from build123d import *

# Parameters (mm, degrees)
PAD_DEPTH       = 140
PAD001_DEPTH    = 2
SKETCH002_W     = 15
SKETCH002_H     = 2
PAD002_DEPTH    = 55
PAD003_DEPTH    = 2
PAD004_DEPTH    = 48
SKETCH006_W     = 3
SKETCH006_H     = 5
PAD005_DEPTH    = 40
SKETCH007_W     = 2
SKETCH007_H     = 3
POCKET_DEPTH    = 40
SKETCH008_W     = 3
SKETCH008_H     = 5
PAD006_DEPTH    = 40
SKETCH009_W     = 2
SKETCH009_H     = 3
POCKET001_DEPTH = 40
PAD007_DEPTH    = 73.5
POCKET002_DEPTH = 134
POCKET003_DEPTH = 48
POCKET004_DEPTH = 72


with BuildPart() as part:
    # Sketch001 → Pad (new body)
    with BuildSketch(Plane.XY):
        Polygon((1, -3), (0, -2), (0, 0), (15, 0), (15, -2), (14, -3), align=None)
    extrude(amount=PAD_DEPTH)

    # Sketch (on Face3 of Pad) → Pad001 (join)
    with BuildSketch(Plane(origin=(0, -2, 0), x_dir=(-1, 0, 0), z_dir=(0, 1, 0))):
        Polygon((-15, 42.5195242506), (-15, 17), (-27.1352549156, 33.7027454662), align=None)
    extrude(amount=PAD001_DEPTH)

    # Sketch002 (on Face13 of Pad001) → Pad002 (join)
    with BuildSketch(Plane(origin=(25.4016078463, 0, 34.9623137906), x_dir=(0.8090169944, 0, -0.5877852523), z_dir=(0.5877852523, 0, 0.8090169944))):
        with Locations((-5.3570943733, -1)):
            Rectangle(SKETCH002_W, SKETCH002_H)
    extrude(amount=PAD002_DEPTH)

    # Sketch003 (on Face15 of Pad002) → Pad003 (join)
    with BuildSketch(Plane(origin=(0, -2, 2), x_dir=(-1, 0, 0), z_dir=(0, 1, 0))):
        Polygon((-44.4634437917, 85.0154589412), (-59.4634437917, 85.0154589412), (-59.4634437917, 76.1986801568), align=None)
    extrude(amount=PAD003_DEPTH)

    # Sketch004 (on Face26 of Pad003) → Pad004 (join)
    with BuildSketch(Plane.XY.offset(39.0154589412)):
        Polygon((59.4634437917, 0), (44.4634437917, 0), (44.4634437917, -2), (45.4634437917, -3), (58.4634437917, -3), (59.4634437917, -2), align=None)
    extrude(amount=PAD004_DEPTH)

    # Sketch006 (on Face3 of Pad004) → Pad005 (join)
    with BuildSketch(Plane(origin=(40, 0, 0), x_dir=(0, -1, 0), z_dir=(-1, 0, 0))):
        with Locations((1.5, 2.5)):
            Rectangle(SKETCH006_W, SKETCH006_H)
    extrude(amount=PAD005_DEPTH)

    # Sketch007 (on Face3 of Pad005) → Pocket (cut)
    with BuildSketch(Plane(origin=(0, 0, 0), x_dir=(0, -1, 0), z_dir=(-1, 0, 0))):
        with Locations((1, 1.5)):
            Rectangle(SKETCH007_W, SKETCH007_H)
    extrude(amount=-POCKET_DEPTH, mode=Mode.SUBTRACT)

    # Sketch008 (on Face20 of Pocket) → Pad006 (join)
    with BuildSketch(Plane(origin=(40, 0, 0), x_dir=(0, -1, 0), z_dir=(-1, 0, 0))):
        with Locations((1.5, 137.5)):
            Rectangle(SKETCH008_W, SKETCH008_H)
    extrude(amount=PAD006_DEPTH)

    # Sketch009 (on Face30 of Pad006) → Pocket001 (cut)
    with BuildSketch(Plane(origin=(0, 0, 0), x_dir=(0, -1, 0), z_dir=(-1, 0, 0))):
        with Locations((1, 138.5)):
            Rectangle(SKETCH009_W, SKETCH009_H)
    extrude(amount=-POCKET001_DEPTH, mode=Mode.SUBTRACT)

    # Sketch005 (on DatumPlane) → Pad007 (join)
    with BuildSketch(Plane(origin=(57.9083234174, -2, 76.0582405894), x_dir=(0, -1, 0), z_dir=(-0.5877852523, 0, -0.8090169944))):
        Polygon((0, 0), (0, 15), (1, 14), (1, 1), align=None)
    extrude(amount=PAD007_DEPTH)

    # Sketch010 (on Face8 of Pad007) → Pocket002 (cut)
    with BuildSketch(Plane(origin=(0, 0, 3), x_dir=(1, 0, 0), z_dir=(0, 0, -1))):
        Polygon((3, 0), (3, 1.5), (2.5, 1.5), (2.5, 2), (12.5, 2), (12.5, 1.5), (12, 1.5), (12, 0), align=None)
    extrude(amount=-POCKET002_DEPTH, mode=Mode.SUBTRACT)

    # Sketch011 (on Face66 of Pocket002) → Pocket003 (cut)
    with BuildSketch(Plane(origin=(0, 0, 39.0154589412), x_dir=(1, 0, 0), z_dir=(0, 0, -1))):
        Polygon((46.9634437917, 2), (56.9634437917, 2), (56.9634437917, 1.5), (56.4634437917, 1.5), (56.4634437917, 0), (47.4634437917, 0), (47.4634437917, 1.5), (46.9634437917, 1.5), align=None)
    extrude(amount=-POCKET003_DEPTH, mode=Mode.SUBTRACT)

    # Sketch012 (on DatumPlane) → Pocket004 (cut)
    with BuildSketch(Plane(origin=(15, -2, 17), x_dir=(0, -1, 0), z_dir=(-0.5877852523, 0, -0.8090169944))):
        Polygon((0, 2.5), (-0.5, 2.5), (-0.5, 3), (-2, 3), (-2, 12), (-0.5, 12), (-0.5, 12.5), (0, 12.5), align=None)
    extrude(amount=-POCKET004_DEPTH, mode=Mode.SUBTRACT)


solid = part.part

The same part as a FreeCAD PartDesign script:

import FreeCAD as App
import Part
import Sketcher
from FreeCAD import Vector
Q = App.Units.Quantity

doc = App.newDocument("Part")
body = doc.addObject("PartDesign::Body", "Body")

# Sketch on XY plane
sketch1 = body.newObject("Sketcher::SketchObject", "Sketch")
sketch1.AttachmentSupport = (doc.getObject("XY_Plane"), [""])
sketch1.MapMode = "FlatFace"
sketch1.addGeometry([
    Part.LineSegment(Vector(0, -2, 0), Vector(1, -3, 0)),  # 0
    Part.LineSegment(Vector(1, -3, 0), Vector(14, -3, 0)),  # 1
    Part.LineSegment(Vector(14, -3, 0), Vector(15, -2, 0)),  # 2
    Part.LineSegment(Vector(15, -2, 0), Vector(15, 0, 0)),  # 3
    Part.LineSegment(Vector(15, 0, 0), Vector(0, 0, 0)),  # 4
    Part.LineSegment(Vector(0, 0, 0), Vector(0, -2, 0)),  # 5
], False)
sketch1.addConstraint([
    Sketcher.Constraint("Coincident", 0, 2, 1, 1),
    Sketcher.Constraint("Coincident", 1, 2, 2, 1),
    Sketcher.Constraint("Coincident", 2, 2, 3, 1),
    Sketcher.Constraint("Coincident", 3, 2, 4, 1),
    Sketcher.Constraint("Coincident", 4, 2, 5, 1),
    Sketcher.Constraint("Coincident", 5, 2, 0, 1),
    Sketcher.Constraint("Horizontal", 1),
    Sketcher.Constraint("Vertical", 3),
    Sketcher.Constraint("Horizontal", 4),
    Sketcher.Constraint("Vertical", 5),
    Sketcher.Constraint("Coincident", 4, 2, -1, 1),
    Sketcher.Constraint("Perpendicular", 0, 2),
    Sketcher.Constraint("Horizontal", 2, 2, 5, 2),
    Sketcher.Constraint("Equal", 0, 2),
    Sketcher.Constraint("DistanceX", 1, 1, 1, 2, Q("13 mm")),
    Sketcher.Constraint("DistanceX", 4, 2, 4, 1, Q("15 mm")),
    Sketcher.Constraint("DistanceY", 3, 1, 3, 2, Q("2 mm")),
])
pad1 = body.newObject("PartDesign::Pad", "Pad")
pad1.Profile = sketch1
pad1.Length = 140

# Sketch on XZ plane
sketch2 = body.newObject("Sketcher::SketchObject", "Sketch001")
sketch2.AttachmentSupport = (doc.getObject("XZ_Plane"), [""])
sketch2.MapMode = "FlatFace"
sketch2.AttachmentOffset = App.Placement(Vector(0, 0, 2), App.Rotation())
sketch2.addGeometry([
    Part.LineSegment(Vector(15, 17, 0), Vector(15, 43, 0)),
    Part.LineSegment(Vector(15, 43, 0), Vector(27, 34, 0)),
    Part.LineSegment(Vector(27, 34, 0), Vector(15, 17, 0)),
], False)
sketch2.addConstraint([
    Sketcher.Constraint("Coincident", 0, 2, 1, 1),
    Sketcher.Constraint("Coincident", 1, 2, 2, 1),
    Sketcher.Constraint("Coincident", 2, 2, 0, 1),
    Sketcher.Constraint("Vertical", 0),
    Sketcher.Constraint("Perpendicular", 1, 2),
    Sketcher.Constraint("Angle", 1, Q("-36 deg")),
    Sketcher.Constraint("Distance", 1, Q("15 mm")),
    Sketcher.Constraint("DistanceX", -1, 1, 0, 2, Q("15 mm")),
    Sketcher.Constraint("DistanceY", -1, 1, 2, 2, Q("17 mm")),
])
pad2 = body.newObject("PartDesign::Pad", "Pad001")
pad2.Profile = sketch2
pad2.Length = 2
pad2.Reversed = True

# Sketch on an angled plane
sketch3 = body.newObject("Sketcher::SketchObject", "Sketch002")
sketch3.Placement = App.Placement(Vector(25.401608, 0, 34.962314), App.Rotation(Vector(0.809016994, 0, -0.587785252), Vector(0, 0.999999999, 0), Vector(0.587785252, 0, 0.809016994), "ZXY"))
sketch3.addGeometry([
    Part.LineSegment(Vector(-12.9, 0, 0), Vector(-12.9, -2, 0)),
    Part.LineSegment(Vector(-12.9, -2, 0), Vector(2.1, -2, 0)),
    Part.LineSegment(Vector(2.1, -2, 0), Vector(2.1, 0, 0)),
    Part.LineSegment(Vector(2.1, 0, 0), Vector(-12.9, 0, 0)),
], False)
sketch3.addConstraint([
    Sketcher.Constraint("Coincident", 0, 2, 1, 1),
    Sketcher.Constraint("Coincident", 1, 2, 2, 1),
    Sketcher.Constraint("Coincident", 2, 2, 3, 1),
    Sketcher.Constraint("Coincident", 3, 2, 0, 1),
    Sketcher.Constraint("Vertical", 0),
    Sketcher.Constraint("Horizontal", 1),
    Sketcher.Constraint("Vertical", 2),
    Sketcher.Constraint("Horizontal", 3),
    Sketcher.Constraint("PointOnObject", 2, 2, -1),
    Sketcher.Constraint("DistanceX", 1, 1, 1, 2, Q("15 mm")),
    Sketcher.Constraint("DistanceY", 0, 2, 0, 1, Q("2 mm")),
    Sketcher.Constraint("DistanceX", 0, 2, -1, 1, Q("12.857094 mm")),
])
pad3 = body.newObject("PartDesign::Pad", "Pad002")
pad3.Profile = sketch3
pad3.Length = 55

# Sketch on XZ plane
sketch4 = body.newObject("Sketcher::SketchObject", "Sketch003")
sketch4.AttachmentSupport = (doc.getObject("XZ_Plane"), [""])
sketch4.MapMode = "FlatFace"
sketch4.AttachmentOffset = App.Placement(Vector(0, 0, 2), App.Rotation())
sketch4.addGeometry([
    Part.LineSegment(Vector(44, 87, 0), Vector(59, 87, 0)),
    Part.LineSegment(Vector(59, 87, 0), Vector(59, 78, 0)),
    Part.LineSegment(Vector(59, 78, 0), Vector(44, 87, 0)),
], False)
sketch4.addConstraint([
    Sketcher.Constraint("Coincident", 0, 2, 1, 1),
    Sketcher.Constraint("Coincident", 1, 2, 2, 1),
    Sketcher.Constraint("Coincident", 2, 2, 0, 1),
    Sketcher.Constraint("Horizontal", 0),
    Sketcher.Constraint("Vertical", 1),
    Sketcher.Constraint("DistanceX", 0, 1, 0, 2, Q("15 mm")),
    Sketcher.Constraint("Distance", 2, Q("17.399298 mm")),
    Sketcher.Constraint("DistanceY", -1, 1, 0, 2, Q("87.015459 mm")),
    Sketcher.Constraint("DistanceX", -1, 1, 0, 2, Q("59.463444 mm")),
])
pad4 = body.newObject("PartDesign::Pad", "Pad003")
pad4.Profile = sketch4
pad4.Length = 2
pad4.Reversed = True

# Sketch on XY plane
sketch5 = body.newObject("Sketcher::SketchObject", "Sketch004")
sketch5.AttachmentSupport = (doc.getObject("XY_Plane"), [""])
sketch5.MapMode = "FlatFace"
sketch5.AttachmentOffset = App.Placement(Vector(0, 0, 39.015459), App.Rotation())
sketch5.addGeometry([
    Part.LineSegment(Vector(59.5, 0, 0), Vector(44.5, 0, 0)),  # 0
    Part.LineSegment(Vector(44.5, 0, 0), Vector(44.5, -2, 0)),  # 1
    Part.LineSegment(Vector(44.5, -2, 0), Vector(45.5, -3, 0)),  # 2
    Part.LineSegment(Vector(45.5, -3, 0), Vector(58.5, -3, 0)),  # 3
    Part.LineSegment(Vector(58.5, -3, 0), Vector(59.5, -2, 0)),  # 4
    Part.LineSegment(Vector(59.5, -2, 0), Vector(59.5, 0, 0)),  # 5
], False)
sketch5.addConstraint([
    Sketcher.Constraint("Coincident", 0, 2, 1, 1),
    Sketcher.Constraint("Coincident", 1, 2, 2, 1),
    Sketcher.Constraint("Coincident", 2, 2, 3, 1),
    Sketcher.Constraint("Coincident", 3, 2, 4, 1),
    Sketcher.Constraint("Coincident", 4, 2, 5, 1),
    Sketcher.Constraint("Coincident", 5, 2, 0, 1),
    Sketcher.Constraint("Horizontal", 0),
    Sketcher.Constraint("Vertical", 1),
    Sketcher.Constraint("Horizontal", 3),
    Sketcher.Constraint("Vertical", 5),
    Sketcher.Constraint("PointOnObject", 0, 2, -1),
    Sketcher.Constraint("Perpendicular", 2, 4),
    Sketcher.Constraint("Horizontal", 1, 2, 4, 2),
    Sketcher.Constraint("Equal", 2, 4),
    Sketcher.Constraint("DistanceX", 0, 2, 0, 1, Q("15 mm")),
    Sketcher.Constraint("DistanceX", 3, 1, 3, 2, Q("13 mm")),
    Sketcher.Constraint("DistanceY", 1, 2, 1, 1, Q("2 mm")),
    Sketcher.Constraint("DistanceX", -1, 1, 0, 2, Q("44.463444 mm")),
])
pad5 = body.newObject("PartDesign::Pad", "Pad004")
pad5.Profile = sketch5
pad5.Length = 48

# Sketch on YZ plane
sketch6 = body.newObject("Sketcher::SketchObject", "Sketch005")
sketch6.AttachmentSupport = (doc.getObject("YZ_Plane"), [""])
sketch6.MapMode = "FlatFace"
sketch6.AttachmentOffset = App.Placement(Vector(0, 0, 40), App.Rotation())
sketch6.addGeometry([
    Part.LineSegment(Vector(0, 5, 0), Vector(0, 0, 0)),
    Part.LineSegment(Vector(0, 0, 0), Vector(-3, 0, 0)),
    Part.LineSegment(Vector(-3, 0, 0), Vector(-3, 5, 0)),
    Part.LineSegment(Vector(-3, 5, 0), Vector(0, 5, 0)),
], False)
sketch6.addConstraint([
    Sketcher.Constraint("Coincident", 0, 2, 1, 1),
    Sketcher.Constraint("Coincident", 1, 2, 2, 1),
    Sketcher.Constraint("Coincident", 2, 2, 3, 1),
    Sketcher.Constraint("Coincident", 3, 2, 0, 1),
    Sketcher.Constraint("Vertical", 0),
    Sketcher.Constraint("Horizontal", 1),
    Sketcher.Constraint("Vertical", 2),
    Sketcher.Constraint("Horizontal", 3),
    Sketcher.Constraint("Coincident", 0, 2, -1, 1),
    Sketcher.Constraint("DistanceX", 1, 2, 1, 1, Q("3 mm")),
    Sketcher.Constraint("DistanceY", 0, 2, 0, 1, Q("5 mm")),
])
pad6 = body.newObject("PartDesign::Pad", "Pad005")
pad6.Profile = sketch6
pad6.Length = 40
pad6.Reversed = True

# Sketch on YZ plane
sketch7 = body.newObject("Sketcher::SketchObject", "Sketch006")
sketch7.AttachmentSupport = (doc.getObject("YZ_Plane"), [""])
sketch7.MapMode = "FlatFace"
sketch7.addGeometry([
    Part.LineSegment(Vector(0, 3, 0), Vector(0, 0, 0)),
    Part.LineSegment(Vector(0, 0, 0), Vector(-2, 0, 0)),
    Part.LineSegment(Vector(-2, 0, 0), Vector(-2, 3, 0)),
    Part.LineSegment(Vector(-2, 3, 0), Vector(0, 3, 0)),
], False)
sketch7.addConstraint([
    Sketcher.Constraint("Coincident", 0, 2, 1, 1),
    Sketcher.Constraint("Coincident", 1, 2, 2, 1),
    Sketcher.Constraint("Coincident", 2, 2, 3, 1),
    Sketcher.Constraint("Coincident", 3, 2, 0, 1),
    Sketcher.Constraint("Vertical", 0),
    Sketcher.Constraint("Horizontal", 1),
    Sketcher.Constraint("Vertical", 2),
    Sketcher.Constraint("Horizontal", 3),
    Sketcher.Constraint("Coincident", 0, 2, -1, 1),
    Sketcher.Constraint("DistanceX", 1, 2, 1, 1, Q("2 mm")),
    Sketcher.Constraint("DistanceY", 0, 2, 0, 1, Q("3 mm")),
])
pocket1 = body.newObject("PartDesign::Pocket", "Pocket")
pocket1.Profile = sketch7
pocket1.Length = 40
pocket1.Reversed = True

# Sketch on YZ plane
sketch8 = body.newObject("Sketcher::SketchObject", "Sketch007")
sketch8.AttachmentSupport = (doc.getObject("YZ_Plane"), [""])
sketch8.MapMode = "FlatFace"
sketch8.AttachmentOffset = App.Placement(Vector(0, 0, 40), App.Rotation())
sketch8.addGeometry([
    Part.LineSegment(Vector(0, 140, 0), Vector(0, 135, 0)),
    Part.LineSegment(Vector(0, 135, 0), Vector(-3, 135, 0)),
    Part.LineSegment(Vector(-3, 135, 0), Vector(-3, 140, 0)),
    Part.LineSegment(Vector(-3, 140, 0), Vector(0, 140, 0)),
], False)
sketch8.addConstraint([
    Sketcher.Constraint("Coincident", 0, 2, 1, 1),
    Sketcher.Constraint("Coincident", 1, 2, 2, 1),
    Sketcher.Constraint("Coincident", 2, 2, 3, 1),
    Sketcher.Constraint("Coincident", 3, 2, 0, 1),
    Sketcher.Constraint("Vertical", 0),
    Sketcher.Constraint("Horizontal", 1),
    Sketcher.Constraint("Vertical", 2),
    Sketcher.Constraint("Horizontal", 3),
    Sketcher.Constraint("PointOnObject", 0, 2, -2),
    Sketcher.Constraint("DistanceX", 1, 2, 1, 1, Q("3 mm")),
    Sketcher.Constraint("DistanceY", 0, 2, 0, 1, Q("5 mm")),
    Sketcher.Constraint("DistanceY", -1, 1, 0, 2, Q("135 mm")),
])
pad7 = body.newObject("PartDesign::Pad", "Pad006")
pad7.Profile = sketch8
pad7.Length = 40
pad7.Reversed = True

# Sketch on YZ plane
sketch9 = body.newObject("Sketcher::SketchObject", "Sketch008")
sketch9.AttachmentSupport = (doc.getObject("YZ_Plane"), [""])
sketch9.MapMode = "FlatFace"
sketch9.addGeometry([
    Part.LineSegment(Vector(0, 140, 0), Vector(0, 137, 0)),
    Part.LineSegment(Vector(0, 137, 0), Vector(-2, 137, 0)),
    Part.LineSegment(Vector(-2, 137, 0), Vector(-2, 140, 0)),
    Part.LineSegment(Vector(-2, 140, 0), Vector(0, 140, 0)),
], False)
sketch9.addConstraint([
    Sketcher.Constraint("Coincident", 0, 2, 1, 1),
    Sketcher.Constraint("Coincident", 1, 2, 2, 1),
    Sketcher.Constraint("Coincident", 2, 2, 3, 1),
    Sketcher.Constraint("Coincident", 3, 2, 0, 1),
    Sketcher.Constraint("Vertical", 0),
    Sketcher.Constraint("Horizontal", 1),
    Sketcher.Constraint("Vertical", 2),
    Sketcher.Constraint("Horizontal", 3),
    Sketcher.Constraint("PointOnObject", 0, 2, -2),
    Sketcher.Constraint("DistanceX", 1, 2, 1, 1, Q("2 mm")),
    Sketcher.Constraint("DistanceY", 0, 2, 0, 1, Q("3 mm")),
    Sketcher.Constraint("DistanceY", -1, 1, 0, 2, Q("137 mm")),
])
pocket2 = body.newObject("PartDesign::Pocket", "Pocket001")
pocket2.Profile = sketch9
pocket2.Length = 40
pocket2.Reversed = True

# Sketch on an angled plane
sketch10 = body.newObject("Sketcher::SketchObject", "Sketch009")
sketch10.Placement = App.Placement(Vector(57.908323, -2, 76.058241), App.Rotation(Vector(0, -1, 0), Vector(-0.809016994, 0, 0.587785252), Vector(-0.587785252, 0, -0.809016994), "ZXY"))
sketch10.addGeometry([
    Part.LineSegment(Vector(0, 15, 0), Vector(0, 0, 0)),
    Part.LineSegment(Vector(0, 0, 0), Vector(1, 1, 0)),
    Part.LineSegment(Vector(1, 1, 0), Vector(1, 14, 0)),
    Part.LineSegment(Vector(1, 14, 0), Vector(0, 15, 0)),
], False)
sketch10.addConstraint([
    Sketcher.Constraint("Coincident", 0, 2, 1, 1),
    Sketcher.Constraint("Coincident", 1, 2, 2, 1),
    Sketcher.Constraint("Coincident", 2, 2, 3, 1),
    Sketcher.Constraint("Coincident", 3, 2, 0, 1),
    Sketcher.Constraint("Vertical", 0),
    Sketcher.Constraint("Vertical", 2),
    Sketcher.Constraint("Coincident", 0, 2, -1, 1),
    Sketcher.Constraint("Perpendicular", 1, 3),
    Sketcher.Constraint("Equal", 1, 3),
    Sketcher.Constraint("DistanceY", 0, 2, 0, 1, Q("15 mm")),
    Sketcher.Constraint("DistanceY", 2, 1, 2, 2, Q("13 mm")),
])
pad8 = body.newObject("PartDesign::Pad", "Pad007")
pad8.Profile = sketch10
pad8.Length = 73.5

# Sketch on XY plane
sketch11 = body.newObject("Sketcher::SketchObject", "Sketch010")
sketch11.AttachmentSupport = (doc.getObject("XY_Plane"), [""])
sketch11.MapMode = "FlatFace"
sketch11.AttachmentOffset = App.Placement(Vector(0, 0, 3), App.Rotation())
sketch11.addGeometry([
    Part.LineSegment(Vector(3, -1.5, 0), Vector(3, 0, 0)),  # 0
    Part.LineSegment(Vector(3, 0, 0), Vector(12, 0, 0)),  # 1
    Part.LineSegment(Vector(12, 0, 0), Vector(12, -1.5, 0)),  # 2
    Part.LineSegment(Vector(12, -1.5, 0), Vector(12.5, -1.5, 0)),  # 3
    Part.LineSegment(Vector(12.5, -1.5, 0), Vector(12.5, -2, 0)),  # 4
    Part.LineSegment(Vector(12.5, -2, 0), Vector(2.5, -2, 0)),  # 5
    Part.LineSegment(Vector(2.5, -2, 0), Vector(2.5, -1.5, 0)),  # 6
    Part.LineSegment(Vector(2.5, -1.5, 0), Vector(3, -1.5, 0)),  # 7
], False)
sketch11.addConstraint([
    Sketcher.Constraint("Coincident", 0, 2, 1, 1),
    Sketcher.Constraint("Coincident", 1, 2, 2, 1),
    Sketcher.Constraint("Coincident", 2, 2, 3, 1),
    Sketcher.Constraint("Coincident", 3, 2, 4, 1),
    Sketcher.Constraint("Coincident", 4, 2, 5, 1),
    Sketcher.Constraint("Coincident", 5, 2, 6, 1),
    Sketcher.Constraint("Coincident", 6, 2, 7, 1),
    Sketcher.Constraint("Coincident", 7, 2, 0, 1),
    Sketcher.Constraint("Vertical", 0),
    Sketcher.Constraint("Horizontal", 1),
    Sketcher.Constraint("Vertical", 2),
    Sketcher.Constraint("Horizontal", 3),
    Sketcher.Constraint("Vertical", 4),
    Sketcher.Constraint("Horizontal", 5),
    Sketcher.Constraint("Vertical", 6),
    Sketcher.Constraint("Horizontal", 7),
    Sketcher.Constraint("PointOnObject", 0, 2, -1),
    Sketcher.Constraint("Horizontal", 3, 2, 6, 2),
    Sketcher.Constraint("Equal", 3, 7),
    Sketcher.Constraint("Equal", 7, 4),
    Sketcher.Constraint("DistanceX", 1, 1, 1, 2, Q("9 mm")),
    Sketcher.Constraint("DistanceX", 5, 2, 5, 1, Q("10 mm")),
    Sketcher.Constraint("DistanceY", 0, 1, 0, 2, Q("1.5 mm")),
    Sketcher.Constraint("DistanceX", -1, 1, 0, 2, Q("3 mm")),
])
pocket3 = body.newObject("PartDesign::Pocket", "Pocket002")
pocket3.Profile = sketch11
pocket3.Length = 134
pocket3.Reversed = True

# Sketch on XY plane
sketch12 = body.newObject("Sketcher::SketchObject", "Sketch011")
sketch12.AttachmentSupport = (doc.getObject("XY_Plane"), [""])
sketch12.MapMode = "FlatFace"
sketch12.AttachmentOffset = App.Placement(Vector(0, 0, 39.015459), App.Rotation())
sketch12.addGeometry([
    Part.LineSegment(Vector(57, -2, 0), Vector(47, -2, 0)),  # 0
    Part.LineSegment(Vector(47, -2, 0), Vector(47, -1.5, 0)),  # 1
    Part.LineSegment(Vector(47, -1.5, 0), Vector(47.5, -1.5, 0)),  # 2
    Part.LineSegment(Vector(47.5, -1.5, 0), Vector(47.5, 0, 0)),  # 3
    Part.LineSegment(Vector(47.5, 0, 0), Vector(56.5, 0, 0)),  # 4
    Part.LineSegment(Vector(56.5, 0, 0), Vector(56.5, -1.5, 0)),  # 5
    Part.LineSegment(Vector(56.5, -1.5, 0), Vector(57, -1.5, 0)),  # 6
    Part.LineSegment(Vector(57, -1.5, 0), Vector(57, -2, 0)),  # 7
], False)
sketch12.addConstraint([
    Sketcher.Constraint("Coincident", 0, 2, 1, 1),
    Sketcher.Constraint("Coincident", 1, 2, 2, 1),
    Sketcher.Constraint("Coincident", 2, 2, 3, 1),
    Sketcher.Constraint("Coincident", 3, 2, 4, 1),
    Sketcher.Constraint("Coincident", 4, 2, 5, 1),
    Sketcher.Constraint("Coincident", 5, 2, 6, 1),
    Sketcher.Constraint("Coincident", 6, 2, 7, 1),
    Sketcher.Constraint("Coincident", 7, 2, 0, 1),
    Sketcher.Constraint("Horizontal", 0),
    Sketcher.Constraint("Vertical", 1),
    Sketcher.Constraint("Horizontal", 2),
    Sketcher.Constraint("Vertical", 3),
    Sketcher.Constraint("Horizontal", 4),
    Sketcher.Constraint("Vertical", 5),
    Sketcher.Constraint("Horizontal", 6),
    Sketcher.Constraint("Vertical", 7),
    Sketcher.Constraint("PointOnObject", 3, 2, -1),
    Sketcher.Constraint("Horizontal", 2, 2, 5, 2),
    Sketcher.Constraint("Equal", 2, 6),
    Sketcher.Constraint("Equal", 6, 1),
    Sketcher.Constraint("DistanceX", 0, 2, 0, 1, Q("10 mm")),
    Sketcher.Constraint("DistanceX", 4, 1, 4, 2, Q("9 mm")),
    Sketcher.Constraint("DistanceY", 3, 1, 3, 2, Q("1.5 mm")),
    Sketcher.Constraint("DistanceX", -1, 1, 0, 2, Q("46.963444 mm")),
])
pocket4 = body.newObject("PartDesign::Pocket", "Pocket003")
pocket4.Profile = sketch12
pocket4.Length = 48
pocket4.Reversed = True

# Sketch on an angled plane
sketch13 = body.newObject("Sketcher::SketchObject", "Sketch012")
sketch13.Placement = App.Placement(Vector(15, -2, 17), App.Rotation(Vector(0, -1, 0), Vector(-0.809016994, 0, 0.587785252), Vector(-0.587785252, 0, -0.809016994), "ZXY"))
sketch13.addGeometry([
    Part.LineSegment(Vector(-0.5, 2.5, 0), Vector(0, 2.5, 0)),  # 0
    Part.LineSegment(Vector(0, 2.5, 0), Vector(0, 12.5, 0)),  # 1
    Part.LineSegment(Vector(0, 12.5, 0), Vector(-0.5, 12.5, 0)),  # 2
    Part.LineSegment(Vector(-0.5, 12.5, 0), Vector(-0.5, 12, 0)),  # 3
    Part.LineSegment(Vector(-0.5, 12, 0), Vector(-2, 12, 0)),  # 4
    Part.LineSegment(Vector(-2, 12, 0), Vector(-2, 3, 0)),  # 5
    Part.LineSegment(Vector(-2, 3, 0), Vector(-0.5, 3, 0)),  # 6
    Part.LineSegment(Vector(-0.5, 3, 0), Vector(-0.5, 2.5, 0)),  # 7
], False)
sketch13.addConstraint([
    Sketcher.Constraint("Coincident", 0, 2, 1, 1),
    Sketcher.Constraint("Coincident", 1, 2, 2, 1),
    Sketcher.Constraint("Coincident", 2, 2, 3, 1),
    Sketcher.Constraint("Coincident", 3, 2, 4, 1),
    Sketcher.Constraint("Coincident", 4, 2, 5, 1),
    Sketcher.Constraint("Coincident", 5, 2, 6, 1),
    Sketcher.Constraint("Coincident", 6, 2, 7, 1),
    Sketcher.Constraint("Coincident", 7, 2, 0, 1),
    Sketcher.Constraint("Horizontal", 0),
    Sketcher.Constraint("Vertical", 1),
    Sketcher.Constraint("Horizontal", 2),
    Sketcher.Constraint("Vertical", 3),
    Sketcher.Constraint("Horizontal", 4),
    Sketcher.Constraint("Vertical", 5),
    Sketcher.Constraint("Horizontal", 6),
    Sketcher.Constraint("Vertical", 7),
    Sketcher.Constraint("PointOnObject", 0, 2, -2),
    Sketcher.Constraint("Vertical", 3, 2, 6, 2),
    Sketcher.Constraint("Equal", 2, 3),
    Sketcher.Constraint("Equal", 3, 7),
    Sketcher.Constraint("DistanceY", 1, 1, 1, 2, Q("10 mm")),
    Sketcher.Constraint("DistanceY", 5, 2, 5, 1, Q("9 mm")),
    Sketcher.Constraint("DistanceX", 4, 2, 4, 1, Q("1.5 mm")),
    Sketcher.Constraint("DistanceY", -1, 1, 3, 2, Q("12 mm")),
])
pocket5 = body.newObject("PartDesign::Pocket", "Pocket004")
pocket5.Profile = sketch13
pocket5.Length = 72

doc.recompute()
